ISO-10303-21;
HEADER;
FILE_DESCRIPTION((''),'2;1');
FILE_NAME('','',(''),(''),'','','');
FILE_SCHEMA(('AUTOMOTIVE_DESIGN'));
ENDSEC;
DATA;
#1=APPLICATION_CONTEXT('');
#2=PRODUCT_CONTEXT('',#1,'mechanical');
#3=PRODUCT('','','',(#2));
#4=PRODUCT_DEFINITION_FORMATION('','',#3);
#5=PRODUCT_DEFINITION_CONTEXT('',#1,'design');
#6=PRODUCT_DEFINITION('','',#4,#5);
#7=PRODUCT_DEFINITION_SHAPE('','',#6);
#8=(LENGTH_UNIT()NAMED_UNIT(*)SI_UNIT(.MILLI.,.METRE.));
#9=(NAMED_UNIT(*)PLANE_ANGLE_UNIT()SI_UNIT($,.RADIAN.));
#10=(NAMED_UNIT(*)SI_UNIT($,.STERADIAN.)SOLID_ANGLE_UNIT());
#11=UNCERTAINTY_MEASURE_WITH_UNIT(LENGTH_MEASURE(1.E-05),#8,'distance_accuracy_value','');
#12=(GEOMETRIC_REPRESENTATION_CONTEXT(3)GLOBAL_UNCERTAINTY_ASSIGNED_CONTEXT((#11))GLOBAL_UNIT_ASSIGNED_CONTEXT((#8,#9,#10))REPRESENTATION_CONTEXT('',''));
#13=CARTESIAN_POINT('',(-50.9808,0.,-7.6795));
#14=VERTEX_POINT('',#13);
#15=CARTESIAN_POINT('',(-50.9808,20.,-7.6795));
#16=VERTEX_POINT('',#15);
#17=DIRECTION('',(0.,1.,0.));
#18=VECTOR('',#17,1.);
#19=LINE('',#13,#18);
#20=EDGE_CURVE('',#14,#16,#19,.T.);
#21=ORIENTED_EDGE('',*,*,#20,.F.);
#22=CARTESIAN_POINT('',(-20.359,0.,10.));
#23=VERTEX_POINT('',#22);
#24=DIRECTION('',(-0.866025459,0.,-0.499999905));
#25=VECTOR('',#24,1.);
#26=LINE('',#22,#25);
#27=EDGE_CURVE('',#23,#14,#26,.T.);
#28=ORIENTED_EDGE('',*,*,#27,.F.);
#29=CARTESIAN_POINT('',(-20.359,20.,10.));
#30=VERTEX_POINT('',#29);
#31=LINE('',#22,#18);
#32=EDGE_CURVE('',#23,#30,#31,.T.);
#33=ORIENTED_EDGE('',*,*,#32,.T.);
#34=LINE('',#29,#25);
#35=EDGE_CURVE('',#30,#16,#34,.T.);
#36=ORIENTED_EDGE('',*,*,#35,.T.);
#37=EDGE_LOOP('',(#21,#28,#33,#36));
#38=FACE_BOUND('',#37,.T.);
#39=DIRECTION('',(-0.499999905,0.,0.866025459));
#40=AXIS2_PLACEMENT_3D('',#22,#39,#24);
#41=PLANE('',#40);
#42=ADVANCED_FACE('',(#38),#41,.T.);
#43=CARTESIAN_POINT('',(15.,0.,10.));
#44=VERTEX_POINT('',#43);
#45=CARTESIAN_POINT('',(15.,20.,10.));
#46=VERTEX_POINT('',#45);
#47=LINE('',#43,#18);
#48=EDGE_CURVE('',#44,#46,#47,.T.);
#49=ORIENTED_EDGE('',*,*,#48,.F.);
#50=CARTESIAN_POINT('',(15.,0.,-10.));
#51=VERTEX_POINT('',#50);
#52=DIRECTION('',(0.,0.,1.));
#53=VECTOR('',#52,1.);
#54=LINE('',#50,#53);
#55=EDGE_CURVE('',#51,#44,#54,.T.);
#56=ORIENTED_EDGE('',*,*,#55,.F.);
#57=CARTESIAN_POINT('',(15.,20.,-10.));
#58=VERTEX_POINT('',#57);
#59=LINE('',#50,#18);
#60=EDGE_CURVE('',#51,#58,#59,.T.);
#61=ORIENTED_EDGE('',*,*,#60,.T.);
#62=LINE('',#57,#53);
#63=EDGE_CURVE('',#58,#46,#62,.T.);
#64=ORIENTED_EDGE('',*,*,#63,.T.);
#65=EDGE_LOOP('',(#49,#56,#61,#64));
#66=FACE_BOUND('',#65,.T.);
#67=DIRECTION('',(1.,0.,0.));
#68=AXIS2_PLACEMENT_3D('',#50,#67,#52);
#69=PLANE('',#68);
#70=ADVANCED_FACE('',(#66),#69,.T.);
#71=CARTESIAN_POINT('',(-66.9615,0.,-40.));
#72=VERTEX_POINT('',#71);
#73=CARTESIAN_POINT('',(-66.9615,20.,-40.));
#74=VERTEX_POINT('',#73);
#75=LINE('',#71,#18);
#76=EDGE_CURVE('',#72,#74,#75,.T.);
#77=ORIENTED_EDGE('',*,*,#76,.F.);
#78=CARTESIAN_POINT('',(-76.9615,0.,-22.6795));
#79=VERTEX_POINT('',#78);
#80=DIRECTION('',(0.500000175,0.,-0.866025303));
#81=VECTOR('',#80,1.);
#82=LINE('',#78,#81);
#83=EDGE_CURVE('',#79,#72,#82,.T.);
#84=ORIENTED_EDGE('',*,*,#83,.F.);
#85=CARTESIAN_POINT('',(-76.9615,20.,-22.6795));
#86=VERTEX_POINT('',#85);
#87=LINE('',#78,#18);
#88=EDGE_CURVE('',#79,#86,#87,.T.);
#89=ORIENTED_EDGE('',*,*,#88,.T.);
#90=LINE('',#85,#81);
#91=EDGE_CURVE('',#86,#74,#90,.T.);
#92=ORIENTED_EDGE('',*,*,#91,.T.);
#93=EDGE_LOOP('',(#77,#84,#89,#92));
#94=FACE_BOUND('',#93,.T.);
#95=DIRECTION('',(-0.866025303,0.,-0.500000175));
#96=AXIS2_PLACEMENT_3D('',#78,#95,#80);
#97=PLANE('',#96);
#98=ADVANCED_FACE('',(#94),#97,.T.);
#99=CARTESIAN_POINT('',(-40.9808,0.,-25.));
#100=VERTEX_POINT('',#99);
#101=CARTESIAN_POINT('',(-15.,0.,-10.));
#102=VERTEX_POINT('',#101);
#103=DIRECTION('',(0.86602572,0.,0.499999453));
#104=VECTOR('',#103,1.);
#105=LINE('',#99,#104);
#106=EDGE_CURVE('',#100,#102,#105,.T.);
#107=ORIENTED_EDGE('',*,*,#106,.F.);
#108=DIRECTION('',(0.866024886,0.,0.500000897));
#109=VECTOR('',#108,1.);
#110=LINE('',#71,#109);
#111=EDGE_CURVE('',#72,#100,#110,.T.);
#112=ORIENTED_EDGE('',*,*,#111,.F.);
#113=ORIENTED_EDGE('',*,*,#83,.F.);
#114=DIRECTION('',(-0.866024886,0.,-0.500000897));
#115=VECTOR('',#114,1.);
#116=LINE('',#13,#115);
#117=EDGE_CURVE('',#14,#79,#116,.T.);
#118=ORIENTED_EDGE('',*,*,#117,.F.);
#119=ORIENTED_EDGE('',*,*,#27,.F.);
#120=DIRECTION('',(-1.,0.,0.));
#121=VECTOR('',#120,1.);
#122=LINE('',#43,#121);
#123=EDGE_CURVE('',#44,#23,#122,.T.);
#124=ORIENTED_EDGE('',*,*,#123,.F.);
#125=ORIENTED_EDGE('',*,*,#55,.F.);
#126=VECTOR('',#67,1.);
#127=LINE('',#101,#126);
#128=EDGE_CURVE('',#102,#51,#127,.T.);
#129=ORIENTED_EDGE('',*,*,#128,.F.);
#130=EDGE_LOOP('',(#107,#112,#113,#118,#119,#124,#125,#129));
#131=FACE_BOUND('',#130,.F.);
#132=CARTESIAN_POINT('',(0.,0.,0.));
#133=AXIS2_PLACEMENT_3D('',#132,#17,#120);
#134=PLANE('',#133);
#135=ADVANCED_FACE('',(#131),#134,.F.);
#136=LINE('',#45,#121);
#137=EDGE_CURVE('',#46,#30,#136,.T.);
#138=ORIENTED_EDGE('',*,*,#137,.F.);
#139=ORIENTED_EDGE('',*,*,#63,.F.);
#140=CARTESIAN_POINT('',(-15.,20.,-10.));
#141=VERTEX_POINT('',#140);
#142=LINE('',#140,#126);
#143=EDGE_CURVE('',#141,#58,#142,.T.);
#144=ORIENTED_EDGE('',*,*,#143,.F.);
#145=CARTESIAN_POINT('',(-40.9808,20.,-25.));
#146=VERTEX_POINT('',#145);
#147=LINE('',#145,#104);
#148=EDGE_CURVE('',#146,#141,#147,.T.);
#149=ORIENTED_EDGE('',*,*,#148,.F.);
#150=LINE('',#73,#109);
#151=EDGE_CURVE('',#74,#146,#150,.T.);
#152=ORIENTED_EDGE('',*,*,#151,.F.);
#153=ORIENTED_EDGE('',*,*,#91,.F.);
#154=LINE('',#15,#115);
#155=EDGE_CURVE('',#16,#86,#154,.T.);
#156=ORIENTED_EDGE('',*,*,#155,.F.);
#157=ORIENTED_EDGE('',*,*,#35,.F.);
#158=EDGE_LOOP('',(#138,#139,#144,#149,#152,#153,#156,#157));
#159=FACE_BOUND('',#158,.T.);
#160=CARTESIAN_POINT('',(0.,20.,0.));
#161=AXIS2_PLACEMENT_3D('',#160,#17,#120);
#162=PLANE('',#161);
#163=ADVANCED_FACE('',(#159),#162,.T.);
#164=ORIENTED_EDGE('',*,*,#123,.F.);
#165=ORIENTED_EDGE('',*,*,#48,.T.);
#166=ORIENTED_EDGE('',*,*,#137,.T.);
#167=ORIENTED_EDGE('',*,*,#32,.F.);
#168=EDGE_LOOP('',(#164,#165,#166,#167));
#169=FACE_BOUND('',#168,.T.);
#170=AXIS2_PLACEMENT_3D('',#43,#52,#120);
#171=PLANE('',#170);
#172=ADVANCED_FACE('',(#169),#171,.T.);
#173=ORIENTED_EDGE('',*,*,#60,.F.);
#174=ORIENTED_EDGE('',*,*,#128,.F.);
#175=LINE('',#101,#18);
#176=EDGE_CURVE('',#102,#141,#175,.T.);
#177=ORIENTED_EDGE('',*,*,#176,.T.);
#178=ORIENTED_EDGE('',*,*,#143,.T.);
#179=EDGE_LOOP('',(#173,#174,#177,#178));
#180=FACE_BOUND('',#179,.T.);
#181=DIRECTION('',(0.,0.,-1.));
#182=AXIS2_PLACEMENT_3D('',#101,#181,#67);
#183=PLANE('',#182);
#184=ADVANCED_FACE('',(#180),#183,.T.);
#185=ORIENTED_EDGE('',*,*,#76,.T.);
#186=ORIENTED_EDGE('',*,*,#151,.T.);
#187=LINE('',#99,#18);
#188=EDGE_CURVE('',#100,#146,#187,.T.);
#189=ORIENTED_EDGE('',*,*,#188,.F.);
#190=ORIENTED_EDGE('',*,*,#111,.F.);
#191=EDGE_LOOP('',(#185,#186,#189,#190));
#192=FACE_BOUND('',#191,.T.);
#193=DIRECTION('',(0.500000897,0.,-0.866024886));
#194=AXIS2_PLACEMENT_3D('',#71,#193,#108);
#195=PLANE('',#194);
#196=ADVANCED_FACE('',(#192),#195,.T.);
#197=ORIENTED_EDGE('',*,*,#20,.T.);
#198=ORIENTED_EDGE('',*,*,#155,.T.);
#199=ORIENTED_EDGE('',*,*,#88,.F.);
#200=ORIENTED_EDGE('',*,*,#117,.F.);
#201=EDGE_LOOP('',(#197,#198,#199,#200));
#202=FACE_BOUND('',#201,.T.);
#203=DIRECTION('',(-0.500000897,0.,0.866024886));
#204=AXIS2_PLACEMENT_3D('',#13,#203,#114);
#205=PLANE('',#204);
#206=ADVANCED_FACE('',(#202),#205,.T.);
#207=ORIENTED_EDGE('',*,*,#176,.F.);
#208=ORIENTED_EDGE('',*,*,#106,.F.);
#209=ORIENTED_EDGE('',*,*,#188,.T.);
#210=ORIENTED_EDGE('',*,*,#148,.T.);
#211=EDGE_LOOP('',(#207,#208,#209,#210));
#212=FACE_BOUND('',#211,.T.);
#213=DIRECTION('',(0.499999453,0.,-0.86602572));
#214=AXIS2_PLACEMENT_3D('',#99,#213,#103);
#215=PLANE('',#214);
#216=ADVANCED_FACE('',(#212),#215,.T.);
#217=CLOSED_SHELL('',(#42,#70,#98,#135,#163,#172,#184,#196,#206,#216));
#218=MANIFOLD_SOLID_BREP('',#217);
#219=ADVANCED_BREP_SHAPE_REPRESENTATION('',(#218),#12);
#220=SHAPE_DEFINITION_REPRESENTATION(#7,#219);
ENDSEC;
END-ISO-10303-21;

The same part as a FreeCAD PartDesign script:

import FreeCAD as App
import Part
import Sketcher

V = App.Vector
Q = App.Units.Quantity

doc = App.newDocument("Part")
body = doc.addObject("PartDesign::Body", "Body")

sketch1 = body.newObject("Sketcher::SketchObject", "Sketch")
sketch1.AttachmentSupport = (doc.getObject("XZ_Plane"), [""])
sketch1.MapMode = "FlatFace"
sketch1.addGeometry([
    Part.LineSegment(V(-20, 10, 0), V(15, 10, 0)),
    Part.LineSegment(V(15, 10, 0), V(15, -10, 0)),
    Part.LineSegment(V(15, -10, 0), V(-15, -10, 0)),
    Part.LineSegment(V(-15, -10, 0), V(-41, -25, 0)),
    Part.LineSegment(V(-41, -25, 0), V(-67, -40, 0)),
    Part.LineSegment(V(-67, -40, 0), V(-77, -23, 0)),
    Part.LineSegment(V(-77, -23, 0), V(-51, -8, 0)),
    Part.LineSegment(V(-51, -8, 0), V(-20, 10, 0)),
], False)
sketch1.addConstraint([
    Sketcher.Constraint("Coincident", 0, 2, 1, 1),
    Sketcher.Constraint("Coincident", 1, 2, 2, 1),
    Sketcher.Constraint("Coincident", 2, 2, 3, 1),
    Sketcher.Constraint("Coincident", 3, 2, 4, 1),
    Sketcher.Constraint("Coincident", 4, 2, 5, 1),
    Sketcher.Constraint("Coincident", 5, 2, 6, 1),
    Sketcher.Constraint("Coincident", 6, 2, 7, 1),
    Sketcher.Constraint("Coincident", 7, 2, 0, 1),
    Sketcher.Constraint("Horizontal", 0),
    Sketcher.Constraint("Vertical", 1),
    Sketcher.Constraint("Horizontal", 2),
    Sketcher.Constraint("Symmetric", 0, 2, 2, 2, -1, 1),
    Sketcher.Constraint("Parallel", 3, 4),
    Sketcher.Constraint("Perpendicular", 4, 5),
    Sketcher.Constraint("Perpendicular", 5, 6),
    Sketcher.Constraint("Parallel", 6, 7),
    Sketcher.Constraint("Equal", 3, 4),
    Sketcher.Constraint("Equal", 4, 6),
    Sketcher.Constraint("DistanceX", 2, 2, 2, 1, 30.0),
    Sketcher.Constraint("DistanceY", 1, 2, 1, 1, 20.0),
    Sketcher.Constraint("Angle", 6, Q("30 deg")),
    Sketcher.Constraint("Distance", 3, 30.0),
    Sketcher.Constraint("Distance", 5, 20.0),
])
pad1 = body.newObject("PartDesign::Pad", "Pad")
pad1.Profile = sketch1
pad1.Length = 20
pad1.Reversed = True

doc.recompute()
